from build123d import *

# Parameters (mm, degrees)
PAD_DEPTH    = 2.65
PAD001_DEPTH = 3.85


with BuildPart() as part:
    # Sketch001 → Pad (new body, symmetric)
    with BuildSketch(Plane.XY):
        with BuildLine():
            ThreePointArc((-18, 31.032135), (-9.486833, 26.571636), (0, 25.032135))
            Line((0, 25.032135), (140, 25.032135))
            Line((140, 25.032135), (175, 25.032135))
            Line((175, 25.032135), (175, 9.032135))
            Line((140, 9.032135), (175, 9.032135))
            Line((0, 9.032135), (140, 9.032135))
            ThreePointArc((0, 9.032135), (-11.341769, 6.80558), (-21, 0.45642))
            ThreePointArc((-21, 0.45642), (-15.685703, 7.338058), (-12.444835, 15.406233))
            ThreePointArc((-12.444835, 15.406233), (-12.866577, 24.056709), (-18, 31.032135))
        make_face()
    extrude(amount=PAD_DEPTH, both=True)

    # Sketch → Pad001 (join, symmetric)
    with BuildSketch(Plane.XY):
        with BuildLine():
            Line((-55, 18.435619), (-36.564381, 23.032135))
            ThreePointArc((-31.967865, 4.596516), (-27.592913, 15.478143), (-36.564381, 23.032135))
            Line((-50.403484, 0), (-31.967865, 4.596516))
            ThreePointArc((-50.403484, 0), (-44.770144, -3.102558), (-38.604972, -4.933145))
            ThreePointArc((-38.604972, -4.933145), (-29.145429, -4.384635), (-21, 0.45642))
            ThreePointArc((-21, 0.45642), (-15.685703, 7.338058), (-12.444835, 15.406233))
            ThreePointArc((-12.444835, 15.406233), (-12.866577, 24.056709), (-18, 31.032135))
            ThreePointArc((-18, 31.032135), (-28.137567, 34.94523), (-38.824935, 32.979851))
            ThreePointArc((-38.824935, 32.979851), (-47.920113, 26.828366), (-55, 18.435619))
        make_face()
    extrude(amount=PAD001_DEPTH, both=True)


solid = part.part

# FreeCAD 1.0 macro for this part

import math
import FreeCAD as App
import Part
import Sketcher
from FreeCAD import Vector
Q = App.Units.Quantity

doc = App.newDocument("Part")
body = doc.addObject("PartDesign::Body", "Body")

# Sketch on XY plane
sketch1 = doc.addObject("Sketcher::SketchObject", "Sketch")
body.addObject(sketch1)
sketch1.AttachmentSupport = (doc.XY_Plane, [""])
sketch1.MapMode = "FlatFace"
sketch1.addGeometry([
    Part.ArcOfCircle(Part.Circle(Vector(0, 55, 0), Vector(0, 0, 1), 30), math.radians(-127), math.radians(-90)),  # 0
    Part.ArcOfCircle(Part.Circle(Vector(-27, 19, 0), Vector(0, 0, 1), 15), math.radians(-14), math.radians(53)),  # 1
    Part.ArcOfCircle(Part.Circle(Vector(-43, 23, 0), Vector(0, 0, 1), 32), math.radians(-46), math.radians(-14)),  # 2
    Part.ArcOfCircle(Part.Circle(Vector(0, -21, 0), Vector(0, 0, 1), 30), math.radians(90), math.radians(134)),  # 3
    Part.LineSegment(Vector(0, 9, 0), Vector(175, 9, 0)),  # 4
    Part.LineSegment(Vector(175, 9, 0), Vector(175, 25, 0)),  # 5
    Part.LineSegment(Vector(175, 25, 0), Vector(0, 25, 0)),  # 6
], False)
sketch1.addConstraint([
    Sketcher.Constraint("Tangent", 0, 1, 1, 2),
    Sketcher.Constraint("Tangent", 1, 1, 2, 2),
    Sketcher.Constraint("Tangent", 2, 1, 3, 2),
    Sketcher.Constraint("Tangent", 3, 1, 4, 1),
    Sketcher.Constraint("Coincident", 4, 2, 5, 1),
    Sketcher.Constraint("Coincident", 5, 2, 6, 1),
    Sketcher.Constraint("Tangent", 6, 2, 0, 2),
    Sketcher.Constraint("Horizontal", 4),
    Sketcher.Constraint("Vertical", 5),
    Sketcher.Constraint("Horizontal", 6),
    Sketcher.Constraint("PointOnObject", 0, 3, -2),
    Sketcher.Constraint("PointOnObject", 3, 1, -2),
    Sketcher.Constraint("Radius", 0, Q("29.999999 mm")),
    Sketcher.Constraint("Radius", 1, Q("15.000001 mm")),
    Sketcher.Constraint("DistanceX", 4, 1, 4, 2, Q("175 mm")),
    Sketcher.Constraint("DistanceY", 5, 1, 5, 2, Q("16 mm")),
    Sketcher.Constraint("DistanceX", 1, 3, -1, 1, Q("27.000001 mm")),
    Sketcher.Constraint("DistanceX", 2, 1, -1, 1, Q("21 mm")),
    Sketcher.Constraint("Radius", 2, Q("31.64544 mm")),
    Sketcher.Constraint("DistanceY", 3, 3, -1, 1, Q("20.96787 mm")),
])
pad1 = doc.addObject("PartDesign::Pad", "Pad")
body.addObject(pad1)
pad1.Profile = sketch1
pad1.Length = 5.3
pad1.Midplane = True

# Sketch on XY plane
sketch2 = doc.addObject("Sketcher::SketchObject", "Sketch001")
body.addObject(sketch2)
sketch2.AttachmentSupport = (doc.XY_Plane, [""])
sketch2.MapMode = "FlatFace"
sketch2.addGeometry([
    Part.LineSegment(Vector(-55, 18, 0), Vector(-37, 23, 0)),  # 0
    Part.ArcOfCircle(Part.Circle(Vector(-37, 13, 0), Vector(0, 0, 1), 10), math.radians(-58), math.radians(86)),  # 1
    Part.LineSegment(Vector(-32, 5, 0), Vector(-50, 0, 0)),  # 2
    Part.ArcOfCircle(Part.Circle(Vector(-33, 25, 0), Vector(0, 0, 1), 30), math.radians(-125), math.radians(-100)),  # 3
    Part.ArcOfCircle(Part.Circle(Vector(-35, 15, 0), Vector(0, 0, 1), 20), math.radians(-100), math.radians(-46)),  # 4
    Part.ArcOfCircle(Part.Circle(Vector(-43, 23, 0), Vector(0, 0, 1), 32), math.radians(-46), math.radians(-14)),  # 5
    Part.ArcOfCircle(Part.Circle(Vector(-27, 19, 0), Vector(0, 0, 1), 15), math.radians(-14), math.radians(53)),  # 6
    Part.ArcOfCircle(Part.Circle(Vector(-30, 15, 0), Vector(0, 0, 1), 20), math.radians(53), math.radians(116)),  # 7
    Part.ArcOfCircle(Part.Circle(Vector(-21, -3, 0), Vector(0, 0, 1), 40), math.radians(116), math.radians(148)),  # 8
], False)
sketch2.addConstraint([
    Sketcher.Constraint("Coincident", 0, 2, 1, 2),
    Sketcher.Constraint("Coincident", 1, 1, 2, 1),
    Sketcher.Constraint("Coincident", 2, 2, 3, 1),
    Sketcher.Constraint("Tangent", 3, 2, 4, 1),
    Sketcher.Constraint("Tangent", 4, 2, 5, 1),
    Sketcher.Constraint("Tangent", 5, 2, 6, 1),
    Sketcher.Constraint("Tangent", 6, 2, 7, 1),
    Sketcher.Constraint("Tangent", 7, 2, 8, 1),
    Sketcher.Constraint("Coincident", 8, 2, 0, 1),
    Sketcher.Constraint("Equal", 4, 7),
    Sketcher.Constraint("PointOnObject", 2, 2, -1),
    Sketcher.Constraint("Parallel", 0, 2),
    Sketcher.Constraint("Equal", 0, 2),
    Sketcher.Constraint("Radius", 1, Q("10 mm")),
    Sketcher.Constraint("Radius", 4, Q("19.999999 mm")),
    Sketcher.Constraint("Radius", 6, Q("15.000001 mm")),
    Sketcher.Constraint("Angle", 0, Q("14 deg")),
    Sketcher.Constraint("Distance", 0, Q("19 mm")),
    Sketcher.Constraint("DistanceX", 4, 3, -1, 1, Q("35 mm")),
    Sketcher.Constraint("DistanceX", 6, 3, -1, 1, Q("27.000001 mm")),
    Sketcher.Constraint("DistanceX", 7, 3, -1, 1, Q("29.999999 mm")),
    Sketcher.Constraint("DistanceX", 4, 2, -1, 1, Q("21 mm")),
    Sketcher.Constraint("DistanceX", 8, 2, -1, 1, Q("55 mm")),
    Sketcher.Constraint("DistanceY", 0, 2, 6, 2, Q("8 mm")),
    Sketcher.Constraint("Radius", 5, Q("31.64544 mm")),
    Sketcher.Constraint("Radius", 3, Q("30.000017 mm")),
    Sketcher.Constraint("Radius", 8, Q("39.999994 mm")),
    Sketcher.Constraint("DistanceX", 5, 3, 3, 3, Q("9.954302 mm")),
    Sketcher.Constraint("DistanceX", 1, 3, 8, 3, Q("16.120802 mm")),
])
pad2 = doc.addObject("PartDesign::Pad", "Pad001")
body.addObject(pad2)
pad2.Profile = sketch2
pad2.Length = 7.7
pad2.Midplane = True

doc.recompute()
